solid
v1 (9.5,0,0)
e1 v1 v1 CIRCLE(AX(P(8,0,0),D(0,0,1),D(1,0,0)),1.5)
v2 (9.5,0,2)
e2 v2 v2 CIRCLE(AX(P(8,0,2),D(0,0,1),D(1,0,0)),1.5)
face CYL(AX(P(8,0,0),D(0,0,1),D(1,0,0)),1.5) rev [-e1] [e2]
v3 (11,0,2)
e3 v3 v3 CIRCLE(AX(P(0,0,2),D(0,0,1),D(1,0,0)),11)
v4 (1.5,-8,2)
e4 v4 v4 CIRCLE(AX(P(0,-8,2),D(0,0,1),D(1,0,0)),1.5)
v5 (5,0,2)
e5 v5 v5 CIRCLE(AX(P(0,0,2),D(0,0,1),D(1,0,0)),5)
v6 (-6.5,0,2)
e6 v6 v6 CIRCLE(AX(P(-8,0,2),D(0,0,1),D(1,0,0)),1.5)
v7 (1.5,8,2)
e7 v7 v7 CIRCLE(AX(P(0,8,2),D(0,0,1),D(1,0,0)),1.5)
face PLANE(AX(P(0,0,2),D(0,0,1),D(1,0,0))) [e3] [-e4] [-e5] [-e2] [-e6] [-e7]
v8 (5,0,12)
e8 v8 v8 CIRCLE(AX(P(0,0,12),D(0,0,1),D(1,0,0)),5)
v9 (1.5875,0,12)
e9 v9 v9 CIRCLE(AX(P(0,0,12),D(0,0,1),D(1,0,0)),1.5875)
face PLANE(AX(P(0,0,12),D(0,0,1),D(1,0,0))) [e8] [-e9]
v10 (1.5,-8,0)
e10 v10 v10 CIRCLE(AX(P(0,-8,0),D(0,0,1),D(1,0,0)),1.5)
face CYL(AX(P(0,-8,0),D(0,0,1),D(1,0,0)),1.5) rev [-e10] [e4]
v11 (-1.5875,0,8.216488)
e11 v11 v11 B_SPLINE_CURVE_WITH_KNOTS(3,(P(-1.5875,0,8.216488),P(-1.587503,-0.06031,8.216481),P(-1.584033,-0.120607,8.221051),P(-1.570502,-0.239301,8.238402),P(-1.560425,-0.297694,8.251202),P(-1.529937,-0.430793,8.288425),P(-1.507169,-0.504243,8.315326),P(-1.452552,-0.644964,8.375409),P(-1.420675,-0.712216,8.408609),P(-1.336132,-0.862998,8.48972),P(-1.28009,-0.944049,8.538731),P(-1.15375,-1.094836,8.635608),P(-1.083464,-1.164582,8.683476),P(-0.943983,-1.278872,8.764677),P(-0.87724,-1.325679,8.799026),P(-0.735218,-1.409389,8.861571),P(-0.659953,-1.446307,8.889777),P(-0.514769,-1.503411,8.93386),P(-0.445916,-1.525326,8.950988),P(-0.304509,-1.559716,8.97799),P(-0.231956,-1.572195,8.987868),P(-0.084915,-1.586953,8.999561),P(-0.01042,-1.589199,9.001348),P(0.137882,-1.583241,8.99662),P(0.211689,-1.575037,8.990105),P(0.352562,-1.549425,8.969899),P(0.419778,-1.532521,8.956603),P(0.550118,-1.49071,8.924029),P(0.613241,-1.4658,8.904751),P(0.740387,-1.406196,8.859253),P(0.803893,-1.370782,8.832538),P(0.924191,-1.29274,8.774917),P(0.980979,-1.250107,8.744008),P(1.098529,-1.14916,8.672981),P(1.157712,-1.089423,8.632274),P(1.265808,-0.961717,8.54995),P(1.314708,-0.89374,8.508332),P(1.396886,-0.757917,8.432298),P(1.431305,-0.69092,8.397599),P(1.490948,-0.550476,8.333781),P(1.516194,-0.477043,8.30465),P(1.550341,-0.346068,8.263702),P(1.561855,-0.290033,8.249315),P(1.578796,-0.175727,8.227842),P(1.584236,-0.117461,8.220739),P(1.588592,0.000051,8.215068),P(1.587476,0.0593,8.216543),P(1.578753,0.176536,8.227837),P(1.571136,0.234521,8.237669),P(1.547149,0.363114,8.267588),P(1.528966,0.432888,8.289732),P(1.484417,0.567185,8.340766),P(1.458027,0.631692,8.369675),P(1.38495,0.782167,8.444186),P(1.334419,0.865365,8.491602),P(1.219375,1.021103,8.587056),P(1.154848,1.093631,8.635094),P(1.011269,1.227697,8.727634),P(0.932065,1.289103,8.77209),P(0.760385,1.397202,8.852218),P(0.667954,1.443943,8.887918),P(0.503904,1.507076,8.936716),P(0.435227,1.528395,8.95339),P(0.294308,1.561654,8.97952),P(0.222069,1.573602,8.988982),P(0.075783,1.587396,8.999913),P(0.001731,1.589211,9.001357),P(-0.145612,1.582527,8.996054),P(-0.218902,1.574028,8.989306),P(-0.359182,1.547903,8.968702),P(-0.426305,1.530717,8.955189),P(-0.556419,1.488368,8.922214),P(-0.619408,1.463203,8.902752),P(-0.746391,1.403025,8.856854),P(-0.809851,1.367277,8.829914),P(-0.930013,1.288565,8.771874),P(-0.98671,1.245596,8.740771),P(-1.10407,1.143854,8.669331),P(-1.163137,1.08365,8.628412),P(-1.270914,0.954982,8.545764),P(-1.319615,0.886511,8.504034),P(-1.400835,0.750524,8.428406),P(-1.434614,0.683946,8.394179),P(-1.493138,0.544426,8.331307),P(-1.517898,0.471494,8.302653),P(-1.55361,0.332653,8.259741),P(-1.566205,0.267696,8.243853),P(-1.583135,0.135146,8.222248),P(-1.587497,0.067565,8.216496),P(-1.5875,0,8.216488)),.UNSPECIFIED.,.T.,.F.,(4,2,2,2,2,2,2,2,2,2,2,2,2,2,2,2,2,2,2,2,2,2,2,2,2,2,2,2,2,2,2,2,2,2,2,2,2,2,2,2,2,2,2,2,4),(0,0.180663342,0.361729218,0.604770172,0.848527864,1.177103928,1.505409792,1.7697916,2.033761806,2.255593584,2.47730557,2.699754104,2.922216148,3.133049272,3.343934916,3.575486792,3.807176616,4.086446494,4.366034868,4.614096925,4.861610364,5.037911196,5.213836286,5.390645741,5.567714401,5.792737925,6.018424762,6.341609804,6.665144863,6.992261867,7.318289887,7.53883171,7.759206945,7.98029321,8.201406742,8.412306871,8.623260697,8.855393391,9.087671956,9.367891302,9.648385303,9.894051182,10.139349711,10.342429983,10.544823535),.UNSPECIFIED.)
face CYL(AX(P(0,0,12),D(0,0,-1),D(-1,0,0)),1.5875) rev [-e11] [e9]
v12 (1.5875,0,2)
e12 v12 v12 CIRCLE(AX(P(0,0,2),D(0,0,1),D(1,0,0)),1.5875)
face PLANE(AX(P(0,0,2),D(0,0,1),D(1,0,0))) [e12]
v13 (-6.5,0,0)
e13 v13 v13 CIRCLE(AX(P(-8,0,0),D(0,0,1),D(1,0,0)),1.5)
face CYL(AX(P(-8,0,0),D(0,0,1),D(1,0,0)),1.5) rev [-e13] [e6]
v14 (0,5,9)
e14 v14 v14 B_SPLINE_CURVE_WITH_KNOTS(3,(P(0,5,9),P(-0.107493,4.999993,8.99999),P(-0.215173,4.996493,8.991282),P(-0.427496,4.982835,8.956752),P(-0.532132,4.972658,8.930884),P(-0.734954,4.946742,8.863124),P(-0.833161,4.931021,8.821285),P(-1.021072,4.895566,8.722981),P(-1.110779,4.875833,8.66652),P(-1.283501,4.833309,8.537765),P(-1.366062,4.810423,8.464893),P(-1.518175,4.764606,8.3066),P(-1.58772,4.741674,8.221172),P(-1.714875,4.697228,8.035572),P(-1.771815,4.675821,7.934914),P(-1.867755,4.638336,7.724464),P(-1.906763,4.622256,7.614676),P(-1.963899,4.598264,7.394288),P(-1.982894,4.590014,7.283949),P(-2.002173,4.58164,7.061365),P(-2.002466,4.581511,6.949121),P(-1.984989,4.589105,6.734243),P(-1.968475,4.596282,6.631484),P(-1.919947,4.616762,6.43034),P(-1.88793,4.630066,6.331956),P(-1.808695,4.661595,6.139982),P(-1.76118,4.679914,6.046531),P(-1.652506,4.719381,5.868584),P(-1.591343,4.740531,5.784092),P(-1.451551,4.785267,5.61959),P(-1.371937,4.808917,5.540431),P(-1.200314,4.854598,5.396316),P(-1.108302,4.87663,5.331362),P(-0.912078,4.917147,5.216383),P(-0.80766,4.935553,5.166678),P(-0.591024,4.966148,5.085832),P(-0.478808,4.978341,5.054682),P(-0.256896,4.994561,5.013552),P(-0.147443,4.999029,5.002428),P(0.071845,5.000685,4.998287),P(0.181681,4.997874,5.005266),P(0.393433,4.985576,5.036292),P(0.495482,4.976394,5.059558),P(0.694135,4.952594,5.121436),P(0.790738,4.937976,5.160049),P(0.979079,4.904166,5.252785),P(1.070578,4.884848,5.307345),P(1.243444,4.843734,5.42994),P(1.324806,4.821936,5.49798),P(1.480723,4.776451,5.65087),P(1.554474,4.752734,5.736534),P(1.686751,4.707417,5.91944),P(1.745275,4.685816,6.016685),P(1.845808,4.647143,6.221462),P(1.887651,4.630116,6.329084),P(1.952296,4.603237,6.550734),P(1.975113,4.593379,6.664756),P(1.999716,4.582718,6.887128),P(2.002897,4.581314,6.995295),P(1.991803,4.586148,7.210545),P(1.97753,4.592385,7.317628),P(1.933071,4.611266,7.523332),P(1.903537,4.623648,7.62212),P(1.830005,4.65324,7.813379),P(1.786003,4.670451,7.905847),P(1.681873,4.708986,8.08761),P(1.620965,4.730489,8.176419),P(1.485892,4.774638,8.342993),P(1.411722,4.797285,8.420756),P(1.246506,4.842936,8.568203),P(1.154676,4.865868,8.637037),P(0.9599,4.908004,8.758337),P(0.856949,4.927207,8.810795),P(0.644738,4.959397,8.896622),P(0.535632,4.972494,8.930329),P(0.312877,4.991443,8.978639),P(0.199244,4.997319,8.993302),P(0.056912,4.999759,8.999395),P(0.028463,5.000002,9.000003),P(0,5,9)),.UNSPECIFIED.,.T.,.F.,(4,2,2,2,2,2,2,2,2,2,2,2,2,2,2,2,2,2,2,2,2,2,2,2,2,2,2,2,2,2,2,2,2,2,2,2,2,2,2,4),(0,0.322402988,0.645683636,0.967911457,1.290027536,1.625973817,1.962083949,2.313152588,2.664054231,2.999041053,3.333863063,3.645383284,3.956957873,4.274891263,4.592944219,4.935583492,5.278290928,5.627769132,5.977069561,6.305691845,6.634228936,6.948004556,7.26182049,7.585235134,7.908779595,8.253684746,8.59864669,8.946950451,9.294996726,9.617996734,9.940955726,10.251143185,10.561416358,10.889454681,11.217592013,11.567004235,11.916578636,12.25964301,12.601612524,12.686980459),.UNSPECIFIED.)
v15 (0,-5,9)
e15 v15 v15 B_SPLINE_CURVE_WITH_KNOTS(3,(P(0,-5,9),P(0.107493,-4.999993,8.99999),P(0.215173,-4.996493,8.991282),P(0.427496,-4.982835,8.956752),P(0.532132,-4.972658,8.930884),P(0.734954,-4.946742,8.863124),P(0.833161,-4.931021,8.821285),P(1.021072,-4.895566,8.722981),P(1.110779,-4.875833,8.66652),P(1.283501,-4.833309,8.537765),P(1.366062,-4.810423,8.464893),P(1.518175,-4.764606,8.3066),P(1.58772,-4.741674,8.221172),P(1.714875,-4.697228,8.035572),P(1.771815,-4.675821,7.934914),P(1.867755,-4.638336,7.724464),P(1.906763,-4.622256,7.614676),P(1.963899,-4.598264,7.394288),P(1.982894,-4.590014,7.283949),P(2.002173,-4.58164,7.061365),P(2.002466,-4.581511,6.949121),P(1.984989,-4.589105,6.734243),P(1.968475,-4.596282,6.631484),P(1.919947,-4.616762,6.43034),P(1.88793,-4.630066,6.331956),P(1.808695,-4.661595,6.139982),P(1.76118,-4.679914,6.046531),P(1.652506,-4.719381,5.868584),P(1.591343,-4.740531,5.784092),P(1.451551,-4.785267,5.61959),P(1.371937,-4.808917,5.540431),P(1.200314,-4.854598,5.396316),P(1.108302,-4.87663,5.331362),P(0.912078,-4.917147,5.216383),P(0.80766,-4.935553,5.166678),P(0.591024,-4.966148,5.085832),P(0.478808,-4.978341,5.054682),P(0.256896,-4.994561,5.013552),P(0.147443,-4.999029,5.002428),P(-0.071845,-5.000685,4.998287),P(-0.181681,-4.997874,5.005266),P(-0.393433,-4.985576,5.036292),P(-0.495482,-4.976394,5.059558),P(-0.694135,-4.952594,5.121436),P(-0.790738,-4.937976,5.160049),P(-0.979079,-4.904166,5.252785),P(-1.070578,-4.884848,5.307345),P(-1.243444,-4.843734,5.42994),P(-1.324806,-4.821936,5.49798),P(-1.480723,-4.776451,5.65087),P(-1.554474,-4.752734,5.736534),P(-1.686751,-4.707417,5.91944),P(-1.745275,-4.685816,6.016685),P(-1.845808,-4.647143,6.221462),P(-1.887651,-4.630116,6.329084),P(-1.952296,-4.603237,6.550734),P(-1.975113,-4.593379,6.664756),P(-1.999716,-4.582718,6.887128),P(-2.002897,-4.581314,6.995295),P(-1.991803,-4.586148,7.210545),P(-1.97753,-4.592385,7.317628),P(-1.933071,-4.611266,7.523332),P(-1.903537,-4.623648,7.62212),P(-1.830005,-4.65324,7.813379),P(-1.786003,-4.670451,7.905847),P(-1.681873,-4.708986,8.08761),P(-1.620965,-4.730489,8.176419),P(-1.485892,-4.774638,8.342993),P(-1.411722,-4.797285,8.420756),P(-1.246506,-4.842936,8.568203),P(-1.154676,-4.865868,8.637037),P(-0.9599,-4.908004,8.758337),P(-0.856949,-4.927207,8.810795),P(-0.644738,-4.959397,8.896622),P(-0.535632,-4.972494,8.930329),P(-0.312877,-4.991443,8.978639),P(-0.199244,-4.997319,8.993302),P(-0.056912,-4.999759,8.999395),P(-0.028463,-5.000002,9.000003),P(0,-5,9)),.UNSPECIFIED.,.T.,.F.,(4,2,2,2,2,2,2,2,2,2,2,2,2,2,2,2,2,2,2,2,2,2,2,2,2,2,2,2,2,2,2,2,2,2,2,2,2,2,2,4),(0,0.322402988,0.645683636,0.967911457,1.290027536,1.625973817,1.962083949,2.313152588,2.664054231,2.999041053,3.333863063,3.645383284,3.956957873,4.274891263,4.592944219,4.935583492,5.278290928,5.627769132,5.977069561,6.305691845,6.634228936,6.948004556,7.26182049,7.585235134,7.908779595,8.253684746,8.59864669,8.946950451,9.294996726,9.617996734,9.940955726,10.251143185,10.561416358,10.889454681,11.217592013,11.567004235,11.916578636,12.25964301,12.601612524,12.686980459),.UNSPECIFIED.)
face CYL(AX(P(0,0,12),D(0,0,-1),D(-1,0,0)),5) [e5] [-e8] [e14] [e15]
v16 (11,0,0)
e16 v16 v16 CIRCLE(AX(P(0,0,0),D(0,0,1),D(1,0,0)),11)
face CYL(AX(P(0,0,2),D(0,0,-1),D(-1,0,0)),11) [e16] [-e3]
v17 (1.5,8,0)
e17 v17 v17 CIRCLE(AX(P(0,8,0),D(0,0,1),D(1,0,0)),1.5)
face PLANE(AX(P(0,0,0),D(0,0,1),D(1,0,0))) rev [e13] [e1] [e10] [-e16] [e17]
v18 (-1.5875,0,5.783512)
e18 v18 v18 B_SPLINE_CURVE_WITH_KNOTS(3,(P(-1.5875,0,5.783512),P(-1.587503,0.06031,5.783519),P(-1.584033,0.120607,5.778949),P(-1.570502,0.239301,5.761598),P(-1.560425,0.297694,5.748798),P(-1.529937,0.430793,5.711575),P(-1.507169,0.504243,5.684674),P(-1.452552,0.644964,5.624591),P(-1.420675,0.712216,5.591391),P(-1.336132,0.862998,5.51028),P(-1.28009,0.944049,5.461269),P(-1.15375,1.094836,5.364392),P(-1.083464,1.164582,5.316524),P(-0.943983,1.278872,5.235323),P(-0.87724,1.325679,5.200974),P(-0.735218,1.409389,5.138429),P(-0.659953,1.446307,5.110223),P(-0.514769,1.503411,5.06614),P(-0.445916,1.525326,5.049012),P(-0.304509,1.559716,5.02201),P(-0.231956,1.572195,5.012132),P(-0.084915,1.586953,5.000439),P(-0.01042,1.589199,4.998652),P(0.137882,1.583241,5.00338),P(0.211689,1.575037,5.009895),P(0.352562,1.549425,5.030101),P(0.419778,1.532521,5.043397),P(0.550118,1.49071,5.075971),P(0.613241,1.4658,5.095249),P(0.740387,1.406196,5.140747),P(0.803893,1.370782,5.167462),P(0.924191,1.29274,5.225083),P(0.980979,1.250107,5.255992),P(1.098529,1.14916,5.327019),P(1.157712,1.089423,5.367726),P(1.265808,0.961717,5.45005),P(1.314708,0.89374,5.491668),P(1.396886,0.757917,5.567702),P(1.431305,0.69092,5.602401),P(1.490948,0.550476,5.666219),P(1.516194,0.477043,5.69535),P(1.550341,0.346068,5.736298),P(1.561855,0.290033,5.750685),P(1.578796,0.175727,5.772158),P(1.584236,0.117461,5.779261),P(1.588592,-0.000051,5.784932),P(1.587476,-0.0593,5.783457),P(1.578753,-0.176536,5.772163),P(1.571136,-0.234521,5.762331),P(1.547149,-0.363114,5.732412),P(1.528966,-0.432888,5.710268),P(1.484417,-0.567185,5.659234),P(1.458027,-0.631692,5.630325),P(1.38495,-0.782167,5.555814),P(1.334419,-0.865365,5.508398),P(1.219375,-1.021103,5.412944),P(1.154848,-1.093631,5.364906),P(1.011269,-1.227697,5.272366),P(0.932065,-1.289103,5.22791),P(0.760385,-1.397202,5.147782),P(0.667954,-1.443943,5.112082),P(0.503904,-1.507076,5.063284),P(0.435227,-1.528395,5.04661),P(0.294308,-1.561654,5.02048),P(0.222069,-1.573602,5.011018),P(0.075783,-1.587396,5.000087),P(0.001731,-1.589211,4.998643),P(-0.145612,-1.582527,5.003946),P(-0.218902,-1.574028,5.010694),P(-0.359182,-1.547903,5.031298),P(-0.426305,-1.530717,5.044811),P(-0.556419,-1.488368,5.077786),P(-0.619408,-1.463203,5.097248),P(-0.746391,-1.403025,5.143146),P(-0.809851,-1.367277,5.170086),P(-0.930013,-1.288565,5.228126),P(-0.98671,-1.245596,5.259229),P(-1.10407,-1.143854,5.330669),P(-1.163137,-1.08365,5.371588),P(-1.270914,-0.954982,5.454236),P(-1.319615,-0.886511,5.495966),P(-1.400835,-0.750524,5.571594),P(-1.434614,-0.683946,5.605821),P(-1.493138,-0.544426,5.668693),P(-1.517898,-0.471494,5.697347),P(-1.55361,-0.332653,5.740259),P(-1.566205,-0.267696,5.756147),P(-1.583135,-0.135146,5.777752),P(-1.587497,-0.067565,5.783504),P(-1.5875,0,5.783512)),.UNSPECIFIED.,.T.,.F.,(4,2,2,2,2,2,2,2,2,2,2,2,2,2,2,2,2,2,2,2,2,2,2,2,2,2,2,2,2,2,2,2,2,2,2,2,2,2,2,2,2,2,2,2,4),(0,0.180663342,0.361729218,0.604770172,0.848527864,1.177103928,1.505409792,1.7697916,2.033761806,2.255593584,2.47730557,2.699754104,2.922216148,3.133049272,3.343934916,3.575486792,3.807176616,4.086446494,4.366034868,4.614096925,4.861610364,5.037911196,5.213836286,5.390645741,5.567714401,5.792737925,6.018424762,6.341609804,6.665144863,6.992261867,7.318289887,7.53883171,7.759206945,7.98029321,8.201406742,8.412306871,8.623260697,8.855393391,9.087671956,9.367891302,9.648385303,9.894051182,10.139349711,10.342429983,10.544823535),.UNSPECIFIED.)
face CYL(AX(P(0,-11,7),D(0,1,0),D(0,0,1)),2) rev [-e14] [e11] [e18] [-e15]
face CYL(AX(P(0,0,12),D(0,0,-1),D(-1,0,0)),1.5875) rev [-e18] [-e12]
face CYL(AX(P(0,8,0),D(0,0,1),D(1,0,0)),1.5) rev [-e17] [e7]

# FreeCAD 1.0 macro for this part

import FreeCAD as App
import Part
import Sketcher
from FreeCAD import Vector
Q = App.Units.Quantity

doc = App.newDocument("Part")
body = doc.addObject("PartDesign::Body", "Body")

# Sketch on XY plane
sketch1 = doc.addObject("Sketcher::SketchObject", "Sketch")
body.addObject(sketch1)
sketch1.AttachmentSupport = (doc.XY_Plane, [""])
sketch1.MapMode = "FlatFace"
sketch1.addGeometry(Part.Circle(Vector(0, 0, 0), Vector(0, 0, 1), 11), False)
sketch1.addConstraint(Sketcher.Constraint("Coincident", 0, 3, -1, 1))
sketch1.addConstraint(Sketcher.Constraint("Diameter", 0, Q("22 mm")))
pad1 = doc.addObject("PartDesign::Pad", "Pad")
body.addObject(pad1)
pad1.Profile = sketch1
pad1.Length = 2

# Sketch on XY plane
sketch2 = doc.addObject("Sketcher::SketchObject", "Sketch001")
body.addObject(sketch2)
sketch2.AttachmentSupport = (doc.XY_Plane, [""])
sketch2.MapMode = "FlatFace"
sketch2.AttachmentOffset = App.Placement(Vector(0, 0, 2), App.Rotation())
sketch2.addGeometry(Part.Circle(Vector(0, 0, 0), Vector(0, 0, 1), 5), False)
sketch2.addGeometry(Part.Circle(Vector(0, 0, 0), Vector(0, 0, 1), 1.6), False)
sketch2.addConstraint(Sketcher.Constraint("Coincident", 0, 3, -1, 1))
sketch2.addConstraint(Sketcher.Constraint("Coincident", 1, 3, -1, 1))
sketch2.addConstraint(Sketcher.Constraint("Diameter", 0, Q("10 mm")))
sketch2.addConstraint(Sketcher.Constraint("Diameter", 1, Q("3.175 mm")))
pad2 = doc.addObject("PartDesign::Pad", "Pad001")
body.addObject(pad2)
pad2.Profile = sketch2
pad2.Length = 10

# Sketch on XY plane
sketch3 = doc.addObject("Sketcher::SketchObject", "Sketch002")
body.addObject(sketch3)
sketch3.AttachmentSupport = (doc.XY_Plane, [""])
sketch3.MapMode = "FlatFace"
sketch3.AttachmentOffset = App.Placement(Vector(0, 0, 2), App.Rotation())
sketch3.addGeometry(Part.Circle(Vector(0, 8, 0), Vector(0, 0, 1), 1.5), False)
sketch3.addGeometry(Part.Circle(Vector(8, 0, 0), Vector(0, 0, 1), 1.5), False)
sketch3.addGeometry(Part.Circle(Vector(0, -8, 0), Vector(0, 0, 1), 1.5), False)
sketch3.addGeometry(Part.Circle(Vector(-8, 0, 0), Vector(0, 0, 1), 1.5), False)
sketch3.addConstraint(Sketcher.Constraint("Equal", 0, 1))
sketch3.addConstraint(Sketcher.Constraint("Equal", 1, 2))
sketch3.addConstraint(Sketcher.Constraint("Equal", 2, 3))
sketch3.addConstraint(Sketcher.Constraint("Symmetric", 0, 3, 2, 3, -1, 1))
sketch3.addConstraint(Sketcher.Constraint("Symmetric", 1, 3, 3, 3, -1, 1))
sketch3.addConstraint(Sketcher.Constraint("PointOnObject", 0, 3, -2))
sketch3.addConstraint(Sketcher.Constraint("PointOnObject", 1, 3, -1))
sketch3.addConstraint(Sketcher.Constraint("Diameter", 0, Q("3 mm")))
sketch3.addConstraint(Sketcher.Constraint("DistanceY", -1, 1, 0, 3, Q("8 mm")))
sketch3.addConstraint(Sketcher.Constraint("DistanceX", -1, 1, 1, 3, Q("8 mm")))
pocket1 = doc.addObject("PartDesign::Pocket", "Pocket")
body.addObject(pocket1)
pocket1.Profile = sketch3
pocket1.Type = "ThroughAll"

# Sketch on XZ plane
sketch4 = doc.addObject("Sketcher::SketchObject", "Sketch003")
body.addObject(sketch4)
sketch4.AttachmentSupport = (doc.XZ_Plane, [""])
sketch4.MapMode = "FlatFace"
sketch4.addGeometry(Part.Circle(Vector(0, 7, 0), Vector(0, 0, 1), 2), False)
sketch4.addConstraint(Sketcher.Constraint("PointOnObject", 0, 3, -2))
sketch4.addConstraint(Sketcher.Constraint("Diameter", 0, Q("4 mm")))
sketch4.addConstraint(Sketcher.Constraint("DistanceY", -1, 1, 0, 3, Q("7 mm")))
pocket2 = doc.addObject("PartDesign::Pocket", "Pocket001")
body.addObject(pocket2)
pocket2.Profile = sketch4
pocket2.Type = "ThroughAll"
pocket2.Midplane = True

doc.recompute()
